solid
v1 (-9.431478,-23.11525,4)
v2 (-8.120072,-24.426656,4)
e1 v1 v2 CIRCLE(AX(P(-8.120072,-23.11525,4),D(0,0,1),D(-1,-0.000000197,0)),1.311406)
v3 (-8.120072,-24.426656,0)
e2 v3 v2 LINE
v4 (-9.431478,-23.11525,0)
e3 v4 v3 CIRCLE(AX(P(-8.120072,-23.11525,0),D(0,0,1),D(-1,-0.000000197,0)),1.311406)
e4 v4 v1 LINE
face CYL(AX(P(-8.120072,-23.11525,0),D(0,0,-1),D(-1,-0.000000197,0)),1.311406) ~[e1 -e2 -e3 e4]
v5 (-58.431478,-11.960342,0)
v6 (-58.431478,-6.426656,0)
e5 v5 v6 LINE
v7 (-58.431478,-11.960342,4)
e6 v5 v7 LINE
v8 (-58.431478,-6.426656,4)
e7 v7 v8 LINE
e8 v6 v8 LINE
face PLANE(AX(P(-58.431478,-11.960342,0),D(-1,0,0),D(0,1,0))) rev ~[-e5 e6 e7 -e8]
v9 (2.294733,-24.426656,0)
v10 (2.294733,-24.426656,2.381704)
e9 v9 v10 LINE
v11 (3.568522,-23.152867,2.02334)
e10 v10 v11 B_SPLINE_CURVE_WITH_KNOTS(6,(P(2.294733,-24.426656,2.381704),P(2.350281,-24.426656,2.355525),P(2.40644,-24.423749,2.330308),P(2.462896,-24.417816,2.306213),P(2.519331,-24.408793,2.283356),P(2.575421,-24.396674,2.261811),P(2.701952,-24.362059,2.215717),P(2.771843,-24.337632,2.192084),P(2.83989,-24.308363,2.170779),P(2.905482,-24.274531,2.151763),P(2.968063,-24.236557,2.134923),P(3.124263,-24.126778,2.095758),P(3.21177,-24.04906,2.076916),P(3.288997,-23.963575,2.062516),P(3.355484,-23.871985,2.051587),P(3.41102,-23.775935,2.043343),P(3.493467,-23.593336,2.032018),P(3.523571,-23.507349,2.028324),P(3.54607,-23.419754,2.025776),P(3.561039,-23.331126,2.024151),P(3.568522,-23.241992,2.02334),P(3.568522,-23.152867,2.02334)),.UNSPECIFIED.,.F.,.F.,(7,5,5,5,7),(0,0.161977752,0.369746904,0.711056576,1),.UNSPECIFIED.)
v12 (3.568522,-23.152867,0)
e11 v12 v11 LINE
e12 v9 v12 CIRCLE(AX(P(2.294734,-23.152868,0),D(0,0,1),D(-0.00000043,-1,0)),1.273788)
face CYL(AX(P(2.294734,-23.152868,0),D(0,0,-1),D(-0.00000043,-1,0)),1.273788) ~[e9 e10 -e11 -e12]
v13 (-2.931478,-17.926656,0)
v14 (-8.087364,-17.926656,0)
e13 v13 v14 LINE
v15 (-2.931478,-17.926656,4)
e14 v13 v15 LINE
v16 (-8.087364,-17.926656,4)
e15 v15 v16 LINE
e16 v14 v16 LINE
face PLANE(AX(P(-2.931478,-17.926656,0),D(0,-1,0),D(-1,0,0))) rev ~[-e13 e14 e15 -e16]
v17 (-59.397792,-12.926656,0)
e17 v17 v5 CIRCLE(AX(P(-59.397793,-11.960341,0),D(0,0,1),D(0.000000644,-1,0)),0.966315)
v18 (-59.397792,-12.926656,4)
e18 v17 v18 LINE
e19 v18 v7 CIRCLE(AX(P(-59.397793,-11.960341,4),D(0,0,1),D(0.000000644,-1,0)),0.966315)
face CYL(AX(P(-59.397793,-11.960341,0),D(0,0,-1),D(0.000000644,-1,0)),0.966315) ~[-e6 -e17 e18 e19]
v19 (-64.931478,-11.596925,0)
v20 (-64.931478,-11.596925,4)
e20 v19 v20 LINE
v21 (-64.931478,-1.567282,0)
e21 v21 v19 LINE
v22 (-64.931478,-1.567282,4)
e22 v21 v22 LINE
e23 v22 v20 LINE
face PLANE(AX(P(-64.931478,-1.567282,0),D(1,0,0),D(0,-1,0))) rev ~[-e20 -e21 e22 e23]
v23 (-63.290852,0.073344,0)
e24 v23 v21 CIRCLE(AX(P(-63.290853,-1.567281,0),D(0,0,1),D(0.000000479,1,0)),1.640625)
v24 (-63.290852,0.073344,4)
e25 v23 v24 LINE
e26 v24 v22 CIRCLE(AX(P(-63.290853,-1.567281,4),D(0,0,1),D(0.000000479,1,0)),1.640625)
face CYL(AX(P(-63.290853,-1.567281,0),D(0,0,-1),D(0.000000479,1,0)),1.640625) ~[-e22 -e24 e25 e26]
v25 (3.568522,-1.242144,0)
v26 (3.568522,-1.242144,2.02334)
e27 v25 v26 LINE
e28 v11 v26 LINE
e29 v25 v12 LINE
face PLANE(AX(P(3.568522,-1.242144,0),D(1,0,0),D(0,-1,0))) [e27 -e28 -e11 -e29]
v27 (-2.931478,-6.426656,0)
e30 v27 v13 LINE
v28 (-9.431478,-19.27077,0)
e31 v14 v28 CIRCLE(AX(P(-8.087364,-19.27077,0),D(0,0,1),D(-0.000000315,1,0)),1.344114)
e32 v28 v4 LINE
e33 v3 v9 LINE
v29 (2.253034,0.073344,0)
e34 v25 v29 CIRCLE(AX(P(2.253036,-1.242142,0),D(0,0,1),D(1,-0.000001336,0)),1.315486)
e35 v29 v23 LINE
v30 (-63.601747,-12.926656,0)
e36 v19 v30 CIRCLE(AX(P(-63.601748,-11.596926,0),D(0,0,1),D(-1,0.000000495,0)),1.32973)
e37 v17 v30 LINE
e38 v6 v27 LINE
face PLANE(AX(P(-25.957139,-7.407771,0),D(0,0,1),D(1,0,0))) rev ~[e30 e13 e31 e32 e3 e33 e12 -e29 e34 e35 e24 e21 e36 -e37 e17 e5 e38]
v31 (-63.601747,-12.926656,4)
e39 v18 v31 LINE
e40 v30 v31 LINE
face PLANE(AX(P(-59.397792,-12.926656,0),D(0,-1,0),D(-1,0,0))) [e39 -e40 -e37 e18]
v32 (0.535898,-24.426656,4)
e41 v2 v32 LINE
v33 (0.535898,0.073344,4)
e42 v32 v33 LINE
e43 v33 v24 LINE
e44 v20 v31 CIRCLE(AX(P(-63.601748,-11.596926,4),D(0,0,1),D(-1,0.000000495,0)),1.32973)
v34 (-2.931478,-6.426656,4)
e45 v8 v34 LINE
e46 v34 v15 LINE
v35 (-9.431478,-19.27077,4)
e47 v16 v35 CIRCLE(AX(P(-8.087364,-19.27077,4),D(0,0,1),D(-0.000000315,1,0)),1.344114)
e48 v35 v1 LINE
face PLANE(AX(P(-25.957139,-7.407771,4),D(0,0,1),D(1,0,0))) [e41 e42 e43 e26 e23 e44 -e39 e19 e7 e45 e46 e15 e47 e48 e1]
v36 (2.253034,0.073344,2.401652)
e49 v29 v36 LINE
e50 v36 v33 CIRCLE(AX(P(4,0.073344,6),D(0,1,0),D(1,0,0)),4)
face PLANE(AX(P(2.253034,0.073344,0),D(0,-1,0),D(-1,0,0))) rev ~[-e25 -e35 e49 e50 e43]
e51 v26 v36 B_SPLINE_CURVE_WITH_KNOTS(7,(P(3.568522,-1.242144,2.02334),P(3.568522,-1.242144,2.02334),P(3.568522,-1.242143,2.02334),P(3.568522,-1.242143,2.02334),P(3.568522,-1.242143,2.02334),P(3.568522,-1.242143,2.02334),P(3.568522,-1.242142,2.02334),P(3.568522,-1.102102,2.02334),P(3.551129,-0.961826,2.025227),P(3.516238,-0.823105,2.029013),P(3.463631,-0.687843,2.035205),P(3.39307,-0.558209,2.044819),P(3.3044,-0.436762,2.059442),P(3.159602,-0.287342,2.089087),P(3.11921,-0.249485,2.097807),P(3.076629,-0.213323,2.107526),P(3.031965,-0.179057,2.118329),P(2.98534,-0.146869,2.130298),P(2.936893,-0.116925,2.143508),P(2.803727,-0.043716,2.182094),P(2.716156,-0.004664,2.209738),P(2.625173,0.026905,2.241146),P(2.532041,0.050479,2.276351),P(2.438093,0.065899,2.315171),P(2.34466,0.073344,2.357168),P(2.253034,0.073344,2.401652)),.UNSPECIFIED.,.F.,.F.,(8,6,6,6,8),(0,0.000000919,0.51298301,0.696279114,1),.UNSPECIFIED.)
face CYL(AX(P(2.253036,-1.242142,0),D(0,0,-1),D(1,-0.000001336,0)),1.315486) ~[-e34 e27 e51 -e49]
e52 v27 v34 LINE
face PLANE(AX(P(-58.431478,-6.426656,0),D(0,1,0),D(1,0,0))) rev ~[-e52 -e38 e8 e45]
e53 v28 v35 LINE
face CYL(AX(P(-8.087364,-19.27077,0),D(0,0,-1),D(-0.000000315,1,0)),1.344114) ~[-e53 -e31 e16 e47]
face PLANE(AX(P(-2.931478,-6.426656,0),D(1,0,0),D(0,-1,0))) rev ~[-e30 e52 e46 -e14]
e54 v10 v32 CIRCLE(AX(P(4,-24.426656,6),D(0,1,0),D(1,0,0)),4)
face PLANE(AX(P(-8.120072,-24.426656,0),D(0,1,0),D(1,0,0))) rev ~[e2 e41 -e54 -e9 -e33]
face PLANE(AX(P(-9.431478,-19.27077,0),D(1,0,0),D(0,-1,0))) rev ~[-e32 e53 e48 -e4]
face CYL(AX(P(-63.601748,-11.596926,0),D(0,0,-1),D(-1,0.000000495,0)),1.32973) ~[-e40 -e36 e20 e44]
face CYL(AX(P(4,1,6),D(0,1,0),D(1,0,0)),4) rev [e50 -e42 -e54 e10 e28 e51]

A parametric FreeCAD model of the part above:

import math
import FreeCAD as App
import Part
import Sketcher
Q = App.Units.Quantity

doc = App.newDocument("Part")
body = doc.addObject("PartDesign::Body", "Body")

# Sketch on XY plane
sketch1 = body.newObject("Sketcher::SketchObject", "Sketch")
sketch1.AttachmentSupport = (doc.getObject("XY_Plane"), [""])
sketch1.MapMode = "FlatFace"
sketch1.addGeometry(Part.Circle(App.Vector(0, 0, 0), App.Vector(0, 0, 1), 4), False)
sketch1.addConstraint([
    Sketcher.Constraint("Coincident", 0, 3, -1, 1),
    Sketcher.Constraint("Diameter", 0, Q("8 mm")),
])
pad1 = body.newObject("PartDesign::Pad", "Pad")
pad1.Profile = sketch1
pad1.Length = 26
body2 = doc.addObject("PartDesign::Body", "Body001")
doc.recompute()

body.Placement = App.Placement(App.Vector(0, 0, 0), App.Rotation(App.Vector(1, 0, 0), 90))
boolean = body2.newObject("PartDesign::Boolean", "Boolean")
boolean.Type = "Fuse"
boolean.addObjects([body])
body3 = doc.addObject("PartDesign::Body", "Body002")
doc.recompute()

body2.Placement = App.Placement(App.Vector(4, 1, 6), App.Rotation(App.Vector(0, 0, 1), 0))
boolean2 = body3.newObject("PartDesign::Boolean", "Boolean001")
boolean2.Type = "Fuse"
boolean2.addObjects([body2])
body4 = doc.addObject("PartDesign::Body", "Body003")

# Sketch on XY plane
sketch2 = body4.newObject("Sketcher::SketchObject", "Sketch001")
sketch2.AttachmentSupport = (doc.getObject("XY_Plane003"), [""])
sketch2.MapMode = "FlatFace"
sketch2.addGeometry([
    Part.LineSegment(App.Vector(2.253034, 0.073344, 0), App.Vector(-63.290852, 0.073344, 0)),  # 0
    Part.ArcOfCircle(Part.Circle(App.Vector(-63.290853, -1.567281, 0), App.Vector(0, 0, 1), 1.640625), math.radians(89.999973), math.radians(180.000027)),  # 1
    Part.LineSegment(App.Vector(-64.931478, -1.567282, 0), App.Vector(-64.931478, -11.596925, 0)),  # 2
    Part.ArcOfCircle(Part.Circle(App.Vector(-63.601748, -11.596926, 0), App.Vector(0, 0, 1), 1.32973), math.radians(179.999972), math.radians(270.000028)),  # 3
    Part.LineSegment(App.Vector(-63.601747, -12.926656, 0), App.Vector(-59.397792, -12.926656, 0)),  # 4
    Part.ArcOfCircle(Part.Circle(App.Vector(-59.397793, -11.960341, 0), App.Vector(0, 0, 1), 0.966315), math.radians(-89.999963), math.radians(-0.000037)),  # 5
    Part.LineSegment(App.Vector(-58.431478, -11.960342, 0), App.Vector(-58.431478, -6.426656, 0)),  # 6
    Part.LineSegment(App.Vector(-58.431478, -6.426656, 0), App.Vector(-2.931478, -6.426656, 0)),  # 7
    Part.LineSegment(App.Vector(-2.931478, -6.426656, 0), App.Vector(-2.931478, -17.926656, 0)),  # 8
    Part.LineSegment(App.Vector(-2.931478, -17.926656, 0), App.Vector(-8.087364, -17.926656, 0)),  # 9
    Part.ArcOfCircle(Part.Circle(App.Vector(-8.087364, -19.27077, 0), App.Vector(0, 0, 1), 1.344114), math.radians(90.000018), math.radians(179.999982)),  # 10
    Part.LineSegment(App.Vector(-9.431478, -19.27077, 0), App.Vector(-9.431478, -23.11525, 0)),  # 11
    Part.ArcOfCircle(Part.Circle(App.Vector(-8.120072, -23.11525, 0), App.Vector(0, 0, 1), 1.311406), math.radians(-179.999989), math.radians(-90.000011)),  # 12
    Part.LineSegment(App.Vector(-8.120072, -24.426656, 0), App.Vector(2.294733, -24.426656, 0)),  # 13
    Part.ArcOfCircle(Part.Circle(App.Vector(2.294734, -23.152868, 0), App.Vector(0, 0, 1), 1.273788), math.radians(-90.000025), math.radians(0.000025)),  # 14
    Part.LineSegment(App.Vector(3.568522, -23.152867, 0), App.Vector(3.568522, -1.242144, 0)),  # 15
    Part.ArcOfCircle(Part.Circle(App.Vector(2.253036, -1.242142, 0), App.Vector(0, 0, 1), 1.315486), math.radians(-0.000077), math.radians(90.000077)),  # 16
], False)
sketch2.addConstraint([
    Sketcher.Constraint("Tangent", 0, 2, 1, 1),
    Sketcher.Constraint("Tangent", 1, 2, 2, 1),
    Sketcher.Constraint("Tangent", 2, 2, 3, 1),
    Sketcher.Constraint("Tangent", 3, 2, 4, 1),
    Sketcher.Constraint("Tangent", 4, 2, 5, 1),
    Sketcher.Constraint("Tangent", 5, 2, 6, 1),
    Sketcher.Constraint("Coincident", 6, 2, 7, 1),
    Sketcher.Constraint("Coincident", 7, 2, 8, 1),
    Sketcher.Constraint("Coincident", 8, 2, 9, 1),
    Sketcher.Constraint("Tangent", 9, 2, 10, 1),
    Sketcher.Constraint("Tangent", 10, 2, 11, 1),
    Sketcher.Constraint("Tangent", 11, 2, 12, 1),
    Sketcher.Constraint("Tangent", 12, 2, 13, 1),
    Sketcher.Constraint("Tangent", 13, 2, 14, 1),
    Sketcher.Constraint("Tangent", 14, 2, 15, 1),
    Sketcher.Constraint("Tangent", 15, 2, 16, 1),
    Sketcher.Constraint("Tangent", 16, 2, 0, 1),
    Sketcher.Constraint("Horizontal", 0),
    Sketcher.Constraint("Vertical", 2),
    Sketcher.Constraint("Horizontal", 4),
    Sketcher.Constraint("Vertical", 6),
    Sketcher.Constraint("Horizontal", 7),
    Sketcher.Constraint("Vertical", 8),
    Sketcher.Constraint("Horizontal", 9),
    Sketcher.Constraint("Vertical", 11),
    Sketcher.Constraint("Horizontal", 13),
    Sketcher.Constraint("Vertical", 15),
    Sketcher.Constraint("DistanceX", 7, 1, 7, 2, Q("55.5 mm")),
    Sketcher.Constraint("DistanceY", 8, 2, 8, 1, Q("11.5 mm")),
    Sketcher.Constraint("DistanceY", 8, 2, 16, 2, Q("18 mm")),
    Sketcher.Constraint("DistanceX", 2, 2, 5, 2, Q("6.5 mm")),
    Sketcher.Constraint("DistanceY", 4, 2, 6, 2, Q("6.5 mm")),
    Sketcher.Constraint("DistanceX", 10, 2, 8, 2, Q("6.5 mm")),
    Sketcher.Constraint("DistanceY", 12, 2, 9, 2, Q("6.5 mm")),
    Sketcher.Constraint("DistanceX", 8, 2, 14, 2, Q("6.5 mm")),
    Sketcher.Constraint("Radius", 3, Q("1.32973 mm")),
    Sketcher.Constraint("Radius", 14, Q("1.273788 mm")),
    Sketcher.Constraint("Radius", 1, Q("1.640625 mm")),
    Sketcher.Constraint("Radius", 5, Q("0.966315 mm")),
    Sketcher.Constraint("Radius", 10, Q("1.344114 mm")),
    Sketcher.Constraint("Radius", 12, Q("1.311406 mm")),
    Sketcher.Constraint("Radius", 16, Q("1.315486 mm")),
    Sketcher.Constraint("DistanceY", 1, 3, -1, 1, Q("1.567281 mm")),
    Sketcher.Constraint("DistanceX", 12, 3, -1, 1, Q("8.120072 mm")),
])
pad2 = body4.newObject("PartDesign::Pad", "Pad001")
pad2.Profile = sketch2
pad2.Length = 4
doc.recompute()

boolean3 = body4.newObject("PartDesign::Boolean", "Boolean002")
boolean3.Type = "Cut"
boolean3.addObjects([body3])

doc.recompute()
